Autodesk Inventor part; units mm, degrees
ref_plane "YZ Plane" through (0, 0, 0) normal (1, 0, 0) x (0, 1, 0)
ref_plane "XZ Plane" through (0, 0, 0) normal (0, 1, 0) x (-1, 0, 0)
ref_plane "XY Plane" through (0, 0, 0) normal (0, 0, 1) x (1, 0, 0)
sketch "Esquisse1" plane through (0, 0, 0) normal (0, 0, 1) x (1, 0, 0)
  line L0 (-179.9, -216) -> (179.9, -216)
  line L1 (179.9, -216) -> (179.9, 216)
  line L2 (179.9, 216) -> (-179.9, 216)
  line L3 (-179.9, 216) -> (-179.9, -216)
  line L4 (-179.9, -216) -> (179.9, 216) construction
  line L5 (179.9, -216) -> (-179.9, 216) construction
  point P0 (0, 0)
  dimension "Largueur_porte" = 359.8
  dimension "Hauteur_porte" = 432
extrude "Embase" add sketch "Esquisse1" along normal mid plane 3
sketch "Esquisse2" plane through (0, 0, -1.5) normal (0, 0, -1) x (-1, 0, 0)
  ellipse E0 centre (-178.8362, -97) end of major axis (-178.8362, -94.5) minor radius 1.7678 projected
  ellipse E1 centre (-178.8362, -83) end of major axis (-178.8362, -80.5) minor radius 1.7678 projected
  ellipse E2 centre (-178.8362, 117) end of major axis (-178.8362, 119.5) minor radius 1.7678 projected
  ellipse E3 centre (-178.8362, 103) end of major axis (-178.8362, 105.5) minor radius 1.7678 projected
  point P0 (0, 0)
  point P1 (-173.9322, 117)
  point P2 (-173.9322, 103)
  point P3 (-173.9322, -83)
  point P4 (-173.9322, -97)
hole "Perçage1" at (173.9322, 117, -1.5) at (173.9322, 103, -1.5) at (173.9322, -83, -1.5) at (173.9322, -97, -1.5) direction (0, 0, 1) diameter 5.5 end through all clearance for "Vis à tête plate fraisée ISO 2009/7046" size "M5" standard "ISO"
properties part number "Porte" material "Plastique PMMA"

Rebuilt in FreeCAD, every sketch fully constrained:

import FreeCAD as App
import Part
import Sketcher
from FreeCAD import Vector
Q = App.Units.Quantity


def add_polygon(sketch, points):
    """Adds a closed chain of lines whose ends are joined by coincident constraints."""
    first, n = sketch.GeometryCount, len(points)
    for a, b in zip(points, points[1:] + points[:1]):
        sketch.addGeometry(Part.LineSegment(App.Vector(*a, 0), App.Vector(*b, 0)), False)
    for i in range(n):
        sketch.addConstraint(Sketcher.Constraint("Coincident", first + i, 2, first + (i + 1) % n, 1))

doc = App.newDocument("Part")
body = doc.addObject("PartDesign::Body", "Body")

# Sketch on XY plane
sketch1 = body.newObject("Sketcher::SketchObject", "Sketch")
sketch1.AttachmentSupport = (doc.getObject("XY_Plane"), [""])
sketch1.MapMode = "FlatFace"
add_polygon(sketch1, [(-179.9, 216), (-179.9, -216), (179.9, -216), (179.9, 216)])  # lines 0-3
sketch1.addConstraint(Sketcher.Constraint("Vertical", 0))
sketch1.addConstraint(Sketcher.Constraint("Horizontal", 1))
sketch1.addConstraint(Sketcher.Constraint("Vertical", 2))
sketch1.addConstraint(Sketcher.Constraint("Horizontal", 3))
sketch1.addConstraint(Sketcher.Constraint("Symmetric", 0, 2, 2, 2, -1, 1))
sketch1.addConstraint(Sketcher.Constraint("DistanceY", 0, 2, 0, 1, Q("432 mm")))
sketch1.addConstraint(Sketcher.Constraint("DistanceX", 1, 1, 1, 2, Q("359.8 mm")))
pad1 = body.newObject("PartDesign::Pad", "Pad")
pad1.Profile = sketch1
pad1.Length = 3
pad1.Midplane = True

# Sketch on XY plane
sketch2 = body.newObject("Sketcher::SketchObject", "Sketch001")
sketch2.AttachmentSupport = (doc.getObject("XY_Plane"), [""])
sketch2.MapMode = "FlatFace"
sketch2.AttachmentOffset = App.Placement(Vector(0, 0, -1.5), App.Rotation())
sketch2.addGeometry(Part.Circle(Vector(173.9322, 117, 0), Vector(0, 0, 1), 2.75), False)
sketch2.addGeometry(Part.Circle(Vector(173.9322, 103, 0), Vector(0, 0, 1), 2.75), False)
sketch2.addGeometry(Part.Circle(Vector(173.9322, -83, 0), Vector(0, 0, 1), 2.75), False)
sketch2.addGeometry(Part.Circle(Vector(173.9322, -97, 0), Vector(0, 0, 1), 2.75), False)
sketch2.addConstraint(Sketcher.Constraint("Equal", 0, 1))
sketch2.addConstraint(Sketcher.Constraint("Equal", 1, 2))
sketch2.addConstraint(Sketcher.Constraint("Equal", 2, 3))
sketch2.addConstraint(Sketcher.Constraint("Vertical", 0, 3, 1, 3))
sketch2.addConstraint(Sketcher.Constraint("Vertical", 1, 3, 2, 3))
sketch2.addConstraint(Sketcher.Constraint("Vertical", 2, 3, 3, 3))
sketch2.addConstraint(Sketcher.Constraint("Diameter", 0, Q("5.5 mm")))
sketch2.addConstraint(Sketcher.Constraint("DistanceY", -1, 1, 0, 3, Q("117 mm")))
sketch2.addConstraint(Sketcher.Constraint("DistanceY", -1, 1, 1, 3, Q("103 mm")))
sketch2.addConstraint(Sketcher.Constraint("DistanceY", 2, 3, -1, 1, Q("83 mm")))
sketch2.addConstraint(Sketcher.Constraint("DistanceY", 3, 3, -1, 1, Q("97 mm")))
sketch2.addConstraint(Sketcher.Constraint("DistanceX", -1, 1, 0, 3, Q("173.9322 mm")))
doc.recompute()
hole = body.newObject("PartDesign::Hole", "Hole")
hole.Profile = sketch2
hole.ThreadType = "None"
hole.Diameter = 5.5
hole.DepthType = "ThroughAll"
hole.Reversed = True

doc.recompute()
